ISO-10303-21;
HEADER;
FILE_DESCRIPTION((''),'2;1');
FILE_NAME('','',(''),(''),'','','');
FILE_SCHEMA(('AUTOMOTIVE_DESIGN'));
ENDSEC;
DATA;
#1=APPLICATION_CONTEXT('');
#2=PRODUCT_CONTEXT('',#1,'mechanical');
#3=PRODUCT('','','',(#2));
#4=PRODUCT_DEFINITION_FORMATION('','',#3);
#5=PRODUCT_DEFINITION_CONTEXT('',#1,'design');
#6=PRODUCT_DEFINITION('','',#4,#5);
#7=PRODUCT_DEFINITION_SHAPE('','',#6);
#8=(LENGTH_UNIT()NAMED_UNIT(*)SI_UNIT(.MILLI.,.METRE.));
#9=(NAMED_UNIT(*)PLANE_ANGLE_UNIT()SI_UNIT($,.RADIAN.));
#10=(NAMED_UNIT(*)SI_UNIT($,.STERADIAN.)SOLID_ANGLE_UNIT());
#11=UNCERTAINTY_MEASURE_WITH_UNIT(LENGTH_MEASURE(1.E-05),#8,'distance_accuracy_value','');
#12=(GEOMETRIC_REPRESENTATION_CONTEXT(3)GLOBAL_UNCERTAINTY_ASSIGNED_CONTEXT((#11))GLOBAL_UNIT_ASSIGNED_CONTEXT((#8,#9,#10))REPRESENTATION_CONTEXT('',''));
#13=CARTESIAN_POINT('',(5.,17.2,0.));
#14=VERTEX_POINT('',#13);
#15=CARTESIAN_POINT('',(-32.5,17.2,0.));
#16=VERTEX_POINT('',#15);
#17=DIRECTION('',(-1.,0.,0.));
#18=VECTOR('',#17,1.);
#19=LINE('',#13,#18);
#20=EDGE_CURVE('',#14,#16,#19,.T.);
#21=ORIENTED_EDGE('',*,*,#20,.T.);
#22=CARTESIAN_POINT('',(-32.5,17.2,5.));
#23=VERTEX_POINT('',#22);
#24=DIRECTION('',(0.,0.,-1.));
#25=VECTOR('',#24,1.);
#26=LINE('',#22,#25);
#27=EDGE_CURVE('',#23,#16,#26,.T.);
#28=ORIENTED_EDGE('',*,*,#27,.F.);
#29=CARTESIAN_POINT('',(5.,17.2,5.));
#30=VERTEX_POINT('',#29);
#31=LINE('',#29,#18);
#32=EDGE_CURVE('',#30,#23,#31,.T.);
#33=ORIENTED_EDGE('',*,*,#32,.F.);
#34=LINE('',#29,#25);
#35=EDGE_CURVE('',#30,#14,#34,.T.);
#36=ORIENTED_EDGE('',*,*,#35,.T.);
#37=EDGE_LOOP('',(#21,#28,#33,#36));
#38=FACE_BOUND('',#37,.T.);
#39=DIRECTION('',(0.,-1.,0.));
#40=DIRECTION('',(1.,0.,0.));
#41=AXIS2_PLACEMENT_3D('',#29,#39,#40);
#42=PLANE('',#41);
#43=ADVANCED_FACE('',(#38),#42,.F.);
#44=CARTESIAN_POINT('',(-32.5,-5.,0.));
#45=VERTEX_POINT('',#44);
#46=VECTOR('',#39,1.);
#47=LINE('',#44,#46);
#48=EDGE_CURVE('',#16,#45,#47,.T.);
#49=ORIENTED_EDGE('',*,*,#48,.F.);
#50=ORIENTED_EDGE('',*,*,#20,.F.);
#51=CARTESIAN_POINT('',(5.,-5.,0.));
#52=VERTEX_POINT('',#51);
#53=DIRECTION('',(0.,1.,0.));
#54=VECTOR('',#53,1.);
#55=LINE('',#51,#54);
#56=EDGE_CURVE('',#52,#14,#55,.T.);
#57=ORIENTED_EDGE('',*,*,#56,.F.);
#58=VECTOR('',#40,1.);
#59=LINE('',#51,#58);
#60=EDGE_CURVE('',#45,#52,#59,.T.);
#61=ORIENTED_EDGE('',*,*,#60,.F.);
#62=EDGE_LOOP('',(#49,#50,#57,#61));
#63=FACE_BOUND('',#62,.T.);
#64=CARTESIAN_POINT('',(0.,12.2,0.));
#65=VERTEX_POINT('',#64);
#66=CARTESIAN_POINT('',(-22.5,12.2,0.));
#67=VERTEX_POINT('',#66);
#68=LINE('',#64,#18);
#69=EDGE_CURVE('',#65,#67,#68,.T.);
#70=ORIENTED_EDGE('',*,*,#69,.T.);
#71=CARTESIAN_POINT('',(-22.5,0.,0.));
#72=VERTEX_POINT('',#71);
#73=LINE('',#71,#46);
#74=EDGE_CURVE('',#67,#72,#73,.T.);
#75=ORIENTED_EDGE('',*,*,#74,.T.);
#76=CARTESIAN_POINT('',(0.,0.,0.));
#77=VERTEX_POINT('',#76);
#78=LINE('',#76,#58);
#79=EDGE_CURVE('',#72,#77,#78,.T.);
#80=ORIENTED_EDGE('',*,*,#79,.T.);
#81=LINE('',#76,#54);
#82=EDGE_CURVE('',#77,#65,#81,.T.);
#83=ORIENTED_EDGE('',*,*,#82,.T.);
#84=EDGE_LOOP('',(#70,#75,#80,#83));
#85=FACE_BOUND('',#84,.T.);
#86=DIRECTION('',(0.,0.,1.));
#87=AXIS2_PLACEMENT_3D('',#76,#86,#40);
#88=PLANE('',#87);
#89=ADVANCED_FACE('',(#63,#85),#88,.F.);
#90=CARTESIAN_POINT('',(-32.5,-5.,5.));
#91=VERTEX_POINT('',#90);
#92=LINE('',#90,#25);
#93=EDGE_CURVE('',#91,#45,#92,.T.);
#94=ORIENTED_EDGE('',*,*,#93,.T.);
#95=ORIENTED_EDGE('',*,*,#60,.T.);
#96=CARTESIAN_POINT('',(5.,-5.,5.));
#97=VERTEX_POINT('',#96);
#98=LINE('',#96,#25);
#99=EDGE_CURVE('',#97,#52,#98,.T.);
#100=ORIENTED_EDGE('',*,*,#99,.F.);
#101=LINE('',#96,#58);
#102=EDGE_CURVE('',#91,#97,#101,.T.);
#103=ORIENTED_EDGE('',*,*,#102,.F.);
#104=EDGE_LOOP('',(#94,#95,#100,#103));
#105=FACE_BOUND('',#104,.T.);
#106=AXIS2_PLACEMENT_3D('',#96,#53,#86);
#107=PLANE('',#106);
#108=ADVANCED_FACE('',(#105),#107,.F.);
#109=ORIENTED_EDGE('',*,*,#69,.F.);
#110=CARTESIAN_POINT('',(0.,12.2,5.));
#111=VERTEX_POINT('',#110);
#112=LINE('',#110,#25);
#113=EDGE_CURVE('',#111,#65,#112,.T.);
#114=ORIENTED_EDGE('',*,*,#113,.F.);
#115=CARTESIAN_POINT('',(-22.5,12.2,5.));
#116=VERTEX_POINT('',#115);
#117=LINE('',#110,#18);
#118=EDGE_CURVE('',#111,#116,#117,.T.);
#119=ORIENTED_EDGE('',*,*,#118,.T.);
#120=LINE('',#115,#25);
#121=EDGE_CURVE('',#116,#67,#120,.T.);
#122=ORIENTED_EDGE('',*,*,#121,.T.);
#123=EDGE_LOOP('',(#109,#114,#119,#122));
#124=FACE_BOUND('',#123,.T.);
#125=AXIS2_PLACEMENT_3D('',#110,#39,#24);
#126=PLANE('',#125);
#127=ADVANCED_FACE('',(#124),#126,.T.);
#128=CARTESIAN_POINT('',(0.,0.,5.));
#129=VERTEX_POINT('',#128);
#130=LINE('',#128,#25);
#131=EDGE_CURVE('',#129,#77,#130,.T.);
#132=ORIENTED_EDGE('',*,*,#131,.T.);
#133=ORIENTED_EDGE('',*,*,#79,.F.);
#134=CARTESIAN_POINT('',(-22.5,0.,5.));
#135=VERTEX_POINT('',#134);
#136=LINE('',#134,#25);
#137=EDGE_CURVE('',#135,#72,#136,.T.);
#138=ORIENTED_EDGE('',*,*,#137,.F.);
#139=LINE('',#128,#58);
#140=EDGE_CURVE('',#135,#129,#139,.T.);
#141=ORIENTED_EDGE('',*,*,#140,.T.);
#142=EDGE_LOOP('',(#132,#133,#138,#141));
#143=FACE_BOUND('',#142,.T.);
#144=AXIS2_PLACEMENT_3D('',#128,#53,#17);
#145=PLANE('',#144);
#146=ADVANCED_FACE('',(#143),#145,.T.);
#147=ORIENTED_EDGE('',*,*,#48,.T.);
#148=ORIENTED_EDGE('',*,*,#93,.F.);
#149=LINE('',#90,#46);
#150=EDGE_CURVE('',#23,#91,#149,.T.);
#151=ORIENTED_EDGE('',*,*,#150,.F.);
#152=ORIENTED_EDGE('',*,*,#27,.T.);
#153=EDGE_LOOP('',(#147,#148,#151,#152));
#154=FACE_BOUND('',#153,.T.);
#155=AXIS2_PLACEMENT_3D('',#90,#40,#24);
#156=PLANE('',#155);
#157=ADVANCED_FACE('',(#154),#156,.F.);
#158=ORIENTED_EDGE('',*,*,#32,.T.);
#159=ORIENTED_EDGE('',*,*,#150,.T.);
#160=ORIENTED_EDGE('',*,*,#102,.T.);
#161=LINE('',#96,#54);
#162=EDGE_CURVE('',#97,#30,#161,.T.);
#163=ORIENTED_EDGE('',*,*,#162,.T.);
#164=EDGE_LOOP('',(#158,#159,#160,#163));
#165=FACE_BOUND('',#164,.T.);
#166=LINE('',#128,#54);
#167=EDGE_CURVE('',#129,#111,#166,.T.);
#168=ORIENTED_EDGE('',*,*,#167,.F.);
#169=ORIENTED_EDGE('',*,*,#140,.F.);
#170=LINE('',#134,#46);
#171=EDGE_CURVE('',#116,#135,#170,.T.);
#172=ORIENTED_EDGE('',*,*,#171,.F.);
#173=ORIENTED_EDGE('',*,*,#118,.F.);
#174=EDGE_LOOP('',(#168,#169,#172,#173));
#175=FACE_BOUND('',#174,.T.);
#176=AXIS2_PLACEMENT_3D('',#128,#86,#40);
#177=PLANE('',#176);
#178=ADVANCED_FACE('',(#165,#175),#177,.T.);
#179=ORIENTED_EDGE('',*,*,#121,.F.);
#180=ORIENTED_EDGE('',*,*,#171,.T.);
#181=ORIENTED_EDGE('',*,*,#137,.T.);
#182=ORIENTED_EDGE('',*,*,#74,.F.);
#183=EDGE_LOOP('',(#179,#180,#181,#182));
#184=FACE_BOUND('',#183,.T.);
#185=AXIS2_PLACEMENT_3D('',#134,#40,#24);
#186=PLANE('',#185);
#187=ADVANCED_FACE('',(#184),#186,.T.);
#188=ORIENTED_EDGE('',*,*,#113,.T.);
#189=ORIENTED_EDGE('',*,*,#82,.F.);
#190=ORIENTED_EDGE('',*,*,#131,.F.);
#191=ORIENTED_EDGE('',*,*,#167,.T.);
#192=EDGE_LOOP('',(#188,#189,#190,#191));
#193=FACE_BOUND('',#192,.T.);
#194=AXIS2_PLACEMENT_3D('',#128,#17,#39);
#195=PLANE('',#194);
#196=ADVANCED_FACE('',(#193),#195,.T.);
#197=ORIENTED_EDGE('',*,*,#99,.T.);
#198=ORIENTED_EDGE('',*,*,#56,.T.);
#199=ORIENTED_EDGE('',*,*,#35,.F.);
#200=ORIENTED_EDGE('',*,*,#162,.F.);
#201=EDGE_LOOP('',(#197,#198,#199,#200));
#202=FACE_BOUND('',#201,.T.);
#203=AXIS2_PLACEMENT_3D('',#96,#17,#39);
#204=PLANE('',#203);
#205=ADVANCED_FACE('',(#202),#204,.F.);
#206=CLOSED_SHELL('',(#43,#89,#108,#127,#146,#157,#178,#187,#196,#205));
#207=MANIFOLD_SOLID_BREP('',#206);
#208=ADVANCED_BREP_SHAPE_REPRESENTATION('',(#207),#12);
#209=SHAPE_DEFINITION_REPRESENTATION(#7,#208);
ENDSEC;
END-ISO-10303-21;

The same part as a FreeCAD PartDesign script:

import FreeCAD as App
import Part
import Sketcher
from FreeCAD import Vector


def add_polygon(sketch, points):
    """Adds a closed chain of lines whose ends are joined by coincident constraints."""
    first, n = sketch.GeometryCount, len(points)
    for a, b in zip(points, points[1:] + points[:1]):
        sketch.addGeometry(Part.LineSegment(App.Vector(*a, 0), App.Vector(*b, 0)), False)
    for i in range(n):
        sketch.addConstraint(Sketcher.Constraint("Coincident", first + i, 2, first + (i + 1) % n, 1))

doc = App.newDocument("Part")
params = doc.addObject("Spreadsheet::Sheet", "Params")
for row, (alias, value) in enumerate([
    ("sketch1_width", "37.5 mm"),
    ("sketch1_width2", "22.5 mm"),
    ("sketch1_height", "22.2 mm"),
    ("sketch1_height2", "12.2 mm"),
    ("pad1_length", "5 mm"),
], start=1):
    params.set(f"A{row}", alias)
    params.set(f"B{row}", "=" + value)
    params.setAlias(f"B{row}", alias)

body = doc.addObject("PartDesign::Body", "Body")

sketch1 = doc.addObject("Sketcher::SketchObject", "Sketch")
body.addObject(sketch1)
sketch1.AttachmentSupport = (doc.XY_Plane, [""])
sketch1.MapMode = "FlatFace"
add_polygon(sketch1, [(-32, 17), (-32, -5), (5, -5), (5, 17)])
add_polygon(sketch1, [(0, 0), (-22, 0), (-22, 12), (0, 12)])
sketch1.addConstraint([
    Sketcher.Constraint("Vertical", 0),
    Sketcher.Constraint("Horizontal", 1),
    Sketcher.Constraint("Vertical", 2),
    Sketcher.Constraint("Horizontal", 3),
    Sketcher.Constraint("Horizontal", 4),
    Sketcher.Constraint("Vertical", 5),
    Sketcher.Constraint("Horizontal", 6),
    Sketcher.Constraint("Vertical", 7),
    Sketcher.Constraint("Coincident", 7, 2, -1, 1),
    Sketcher.Constraint("DistanceX", 1, 1, 1, 2, 37.5),
    Sketcher.Constraint("DistanceX", 4, 2, 4, 1, 22.5),
    Sketcher.Constraint("DistanceY", 0, 2, 0, 1, 22.2),
    Sketcher.Constraint("DistanceY", 5, 1, 5, 2, 12.2),
    Sketcher.Constraint("DistanceY", 0, 2, -1, 1, 5.0),
    Sketcher.Constraint("DistanceX", -1, 1, 1, 2, 5.0),
])
sketch1.setExpression("Constraints[17]", "Params.sketch1_width")
sketch1.setExpression("Constraints[18]", "Params.sketch1_width2")
sketch1.setExpression("Constraints[19]", "Params.sketch1_height")
sketch1.setExpression("Constraints[20]", "Params.sketch1_height2")
pad1 = doc.addObject("PartDesign::Pad", "Pad")
body.addObject(pad1)
pad1.Profile = sketch1
pad1.setExpression("Length", "Params.pad1_length")

doc.recompute()
